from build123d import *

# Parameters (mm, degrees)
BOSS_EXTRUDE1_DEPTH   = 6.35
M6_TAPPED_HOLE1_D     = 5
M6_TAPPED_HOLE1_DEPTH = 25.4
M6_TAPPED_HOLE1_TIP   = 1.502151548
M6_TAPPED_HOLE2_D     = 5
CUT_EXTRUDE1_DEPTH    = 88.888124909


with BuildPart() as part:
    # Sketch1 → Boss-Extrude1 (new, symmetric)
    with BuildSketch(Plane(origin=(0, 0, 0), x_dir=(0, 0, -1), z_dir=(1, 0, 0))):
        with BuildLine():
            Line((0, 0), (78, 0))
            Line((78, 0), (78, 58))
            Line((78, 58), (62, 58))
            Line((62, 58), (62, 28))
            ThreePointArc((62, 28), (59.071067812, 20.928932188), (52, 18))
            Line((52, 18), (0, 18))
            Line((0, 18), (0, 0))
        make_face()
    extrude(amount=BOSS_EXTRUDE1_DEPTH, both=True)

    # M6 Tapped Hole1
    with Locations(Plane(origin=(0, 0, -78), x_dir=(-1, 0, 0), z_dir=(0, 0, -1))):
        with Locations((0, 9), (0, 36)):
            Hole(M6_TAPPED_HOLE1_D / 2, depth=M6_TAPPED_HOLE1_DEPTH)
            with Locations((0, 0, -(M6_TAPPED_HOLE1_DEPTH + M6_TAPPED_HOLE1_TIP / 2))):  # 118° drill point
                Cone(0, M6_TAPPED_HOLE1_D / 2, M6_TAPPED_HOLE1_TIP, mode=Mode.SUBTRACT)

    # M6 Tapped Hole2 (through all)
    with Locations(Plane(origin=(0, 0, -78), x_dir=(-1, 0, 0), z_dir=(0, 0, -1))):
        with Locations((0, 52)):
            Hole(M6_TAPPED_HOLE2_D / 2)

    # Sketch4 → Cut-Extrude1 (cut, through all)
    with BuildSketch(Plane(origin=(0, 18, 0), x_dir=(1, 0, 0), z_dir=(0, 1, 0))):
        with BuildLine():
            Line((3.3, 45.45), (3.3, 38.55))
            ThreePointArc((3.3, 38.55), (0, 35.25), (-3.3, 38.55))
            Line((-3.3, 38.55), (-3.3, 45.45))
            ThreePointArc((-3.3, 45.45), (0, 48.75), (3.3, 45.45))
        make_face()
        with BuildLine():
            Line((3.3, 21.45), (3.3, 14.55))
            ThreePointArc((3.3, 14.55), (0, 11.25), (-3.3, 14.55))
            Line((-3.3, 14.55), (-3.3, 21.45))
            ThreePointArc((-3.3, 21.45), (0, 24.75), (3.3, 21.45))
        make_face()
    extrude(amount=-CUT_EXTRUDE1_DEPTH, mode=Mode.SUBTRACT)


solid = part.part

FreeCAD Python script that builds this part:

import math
import FreeCAD as App
import Part
import Sketcher
from FreeCAD import Vector
Q = App.Units.Quantity

doc = App.newDocument("Part")
body = doc.addObject("PartDesign::Body", "Body")

sketch1 = body.newObject("Sketcher::SketchObject", "Sketch")
sketch1.AttachmentSupport = (doc.getObject("YZ_Plane"), [""])
sketch1.MapMode = "FlatFace"
sketch1.addGeometry([
    Part.LineSegment(Vector(0, 0, 0), Vector(0, -78, 0)),
    Part.LineSegment(Vector(0, -78, 0), Vector(58, -78, 0)),
    Part.LineSegment(Vector(58, -78, 0), Vector(58, -62, 0)),
    Part.LineSegment(Vector(58, -62, 0), Vector(28, -62, 0)),
    Part.ArcOfCircle(Part.Circle(Vector(28, -52, 0), Vector(0, 0, 1), 10), math.radians(180), math.radians(270)),
    Part.LineSegment(Vector(18, -52, 0), Vector(18, 0, 0)),
    Part.LineSegment(Vector(18, 0, 0), Vector(0, 0, 0)),
], False)
sketch1.addConstraint([
    Sketcher.Constraint("Coincident", 0, 2, 1, 1),
    Sketcher.Constraint("Coincident", 1, 2, 2, 1),
    Sketcher.Constraint("Coincident", 2, 2, 3, 1),
    Sketcher.Constraint("Tangent", 3, 2, 4, 2),
    Sketcher.Constraint("Tangent", 4, 1, 5, 1),
    Sketcher.Constraint("Coincident", 5, 2, 6, 1),
    Sketcher.Constraint("Coincident", 6, 2, 0, 1),
    Sketcher.Constraint("Vertical", 0),
    Sketcher.Constraint("Horizontal", 1),
    Sketcher.Constraint("Vertical", 2),
    Sketcher.Constraint("Horizontal", 3),
    Sketcher.Constraint("Vertical", 5),
    Sketcher.Constraint("Horizontal", 6),
    Sketcher.Constraint("Coincident", 6, 2, -1, 1),
    Sketcher.Constraint("Radius", 4, Q("10 mm")),
    Sketcher.Constraint("DistanceX", 1, 1, 1, 2, Q("58 mm")),
    Sketcher.Constraint("DistanceX", 3, 2, 3, 1, Q("30 mm")),
    Sketcher.Constraint("DistanceY", 0, 2, 0, 1, Q("78 mm")),
    Sketcher.Constraint("DistanceY", 2, 1, 2, 2, Q("16 mm")),
])
pad1 = body.newObject("PartDesign::Pad", "Pad")
pad1.Profile = sketch1
pad1.Length = 12.7
pad1.Midplane = True

sketch2 = body.newObject("Sketcher::SketchObject", "Sketch001")
sketch2.AttachmentSupport = (doc.getObject("XY_Plane"), [""])
sketch2.MapMode = "FlatFace"
sketch2.AttachmentOffset = App.Placement(Vector(0, 0, -78), App.Rotation())
sketch2.addGeometry([
    Part.Circle(Vector(0, 9, 0), Vector(0, 0, 1), 2.5),
    Part.Circle(Vector(0, 36, 0), Vector(0, 0, 1), 2.5),
], False)
sketch2.addConstraint([
    Sketcher.Constraint("Equal", 0, 1),
    Sketcher.Constraint("PointOnObject", 0, 3, -2),
    Sketcher.Constraint("PointOnObject", 1, 3, -2),
    Sketcher.Constraint("Diameter", 0, Q("5 mm")),
    Sketcher.Constraint("DistanceY", -1, 1, 0, 3, Q("9 mm")),
    Sketcher.Constraint("DistanceY", -1, 1, 1, 3, Q("36 mm")),
])
doc.recompute()
hole = body.newObject("PartDesign::Hole", "Hole")
hole.Profile = sketch2
hole.ThreadType = "None"
hole.Diameter = 5
hole.DepthType = "Dimension"
hole.Depth = 25.4
hole.DrillPoint = "Angled"
hole.DrillPointAngle = 118
hole.Reversed = True

sketch3 = body.newObject("Sketcher::SketchObject", "Sketch002")
sketch3.AttachmentSupport = (doc.getObject("XY_Plane"), [""])
sketch3.MapMode = "FlatFace"
sketch3.AttachmentOffset = App.Placement(Vector(0, 0, -78), App.Rotation())
sketch3.addGeometry(Part.Circle(Vector(0, 52, 0), Vector(0, 0, 1), 2.5), False)
sketch3.addConstraint([
    Sketcher.Constraint("PointOnObject", 0, 3, -2),
    Sketcher.Constraint("Diameter", 0, Q("5 mm")),
    Sketcher.Constraint("DistanceY", -1, 1, 0, 3, Q("52 mm")),
])
doc.recompute()
hole2 = body.newObject("PartDesign::Hole", "Hole001")
hole2.Profile = sketch3
hole2.ThreadType = "None"
hole2.Diameter = 5
hole2.DepthType = "ThroughAll"
hole2.Reversed = True

sketch4 = body.newObject("Sketcher::SketchObject", "Sketch003")
sketch4.AttachmentSupport = (doc.getObject("XZ_Plane"), [""])
sketch4.MapMode = "FlatFace"
sketch4.AttachmentOffset = App.Placement(Vector(0, 0, -18), App.Rotation())
sketch4.addGeometry([
    Part.LineSegment(Vector(3.3, -38.55, 0), Vector(3.3, -45.45, 0)),
    Part.ArcOfCircle(Part.Circle(Vector(0, -45.45, 0), Vector(0, 0, 1), 3.3), math.radians(180), math.radians(360)),
    Part.LineSegment(Vector(-3.3, -45.45, 0), Vector(-3.3, -38.55, 0)),
    Part.ArcOfCircle(Part.Circle(Vector(0, -38.55, 0), Vector(0, 0, 1), 3.3), math.radians(0), math.radians(180)),
    Part.LineSegment(Vector(3.3, -14.55, 0), Vector(3.3, -21.45, 0)),
    Part.ArcOfCircle(Part.Circle(Vector(0, -21.45, 0), Vector(0, 0, 1), 3.3), math.radians(180), math.radians(360)),
    Part.LineSegment(Vector(-3.3, -21.45, 0), Vector(-3.3, -14.55, 0)),
    Part.ArcOfCircle(Part.Circle(Vector(0, -14.55, 0), Vector(0, 0, 1), 3.3), math.radians(0), math.radians(180)),
], False)
sketch4.addConstraint([
    Sketcher.Constraint("Tangent", 0, 2, 1, 2),
    Sketcher.Constraint("Tangent", 1, 1, 2, 1),
    Sketcher.Constraint("Tangent", 2, 2, 3, 2),
    Sketcher.Constraint("Tangent", 3, 1, 0, 1),
    Sketcher.Constraint("Tangent", 4, 2, 5, 2),
    Sketcher.Constraint("Tangent", 5, 1, 6, 1),
    Sketcher.Constraint("Tangent", 6, 2, 7, 2),
    Sketcher.Constraint("Tangent", 7, 1, 4, 1),
    Sketcher.Constraint("Vertical", 0),
    Sketcher.Constraint("Vertical", 2),
    Sketcher.Constraint("Vertical", 4),
    Sketcher.Constraint("Vertical", 6),
    Sketcher.Constraint("Equal", 3, 5),
    Sketcher.Constraint("PointOnObject", 1, 3, -2),
    Sketcher.Constraint("PointOnObject", 5, 3, -2),
    Sketcher.Constraint("Equal", 2, 4),
    Sketcher.Constraint("Radius", 1, Q("3.3 mm")),
    Sketcher.Constraint("DistanceY", 0, 2, 0, 1, Q("6.9 mm")),
    Sketcher.Constraint("DistanceY", 1, 3, 5, 3, Q("24 mm")),
    Sketcher.Constraint("DistanceY", 1, 3, -1, 1, Q("45.45 mm")),
])
pocket1 = body.newObject("PartDesign::Pocket", "Pocket")
pocket1.Profile = sketch4
pocket1.Type = "ThroughAll"
pocket1.Reversed = True

doc.recompute()
